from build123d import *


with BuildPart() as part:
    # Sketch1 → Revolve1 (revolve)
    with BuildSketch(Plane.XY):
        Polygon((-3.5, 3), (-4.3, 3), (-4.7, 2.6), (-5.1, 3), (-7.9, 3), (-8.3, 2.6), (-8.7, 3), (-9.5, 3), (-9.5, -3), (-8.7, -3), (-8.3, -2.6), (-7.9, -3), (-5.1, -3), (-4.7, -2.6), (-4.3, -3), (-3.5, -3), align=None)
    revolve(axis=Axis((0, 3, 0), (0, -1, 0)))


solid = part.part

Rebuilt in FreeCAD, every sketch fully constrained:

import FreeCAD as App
import Part
import Sketcher

doc = App.newDocument("Part")
body = doc.addObject("PartDesign::Body", "Body")

sketch1 = body.newObject("Sketcher::SketchObject", "Sketch")
sketch1.AttachmentSupport = (doc.getObject("XY_Plane"), [""])
sketch1.MapMode = "FlatFace"
sketch1.addGeometry(Part.LineSegment(App.Vector(-3.5, 3, 0), App.Vector(-4.3, 3, 0)), False)
sketch1.addGeometry(Part.LineSegment(App.Vector(-4.3, 3, 0), App.Vector(-4.7, 2.6, 0)), False)
sketch1.addGeometry(Part.LineSegment(App.Vector(-4.7, 2.6, 0), App.Vector(-5.1, 3, 0)), False)
sketch1.addGeometry(Part.LineSegment(App.Vector(-5.1, 3, 0), App.Vector(-7.9, 3, 0)), False)
sketch1.addGeometry(Part.LineSegment(App.Vector(-7.9, 3, 0), App.Vector(-8.3, 2.6, 0)), False)
sketch1.addGeometry(Part.LineSegment(App.Vector(-8.3, 2.6, 0), App.Vector(-8.7, 3, 0)), False)
sketch1.addGeometry(Part.LineSegment(App.Vector(-8.7, 3, 0), App.Vector(-9.5, 3, 0)), False)
sketch1.addGeometry(Part.LineSegment(App.Vector(-9.5, 3, 0), App.Vector(-9.5, -3, 0)), False)
sketch1.addGeometry(Part.LineSegment(App.Vector(-9.5, -3, 0), App.Vector(-8.7, -3, 0)), False)
sketch1.addGeometry(Part.LineSegment(App.Vector(-8.7, -3, 0), App.Vector(-8.3, -2.6, 0)), False)
sketch1.addGeometry(Part.LineSegment(App.Vector(-8.3, -2.6, 0), App.Vector(-7.9, -3, 0)), False)
sketch1.addGeometry(Part.LineSegment(App.Vector(-7.9, -3, 0), App.Vector(-5.1, -3, 0)), False)
sketch1.addGeometry(Part.LineSegment(App.Vector(-5.1, -3, 0), App.Vector(-4.7, -2.6, 0)), False)
sketch1.addGeometry(Part.LineSegment(App.Vector(-4.7, -2.6, 0), App.Vector(-4.3, -3, 0)), False)
sketch1.addGeometry(Part.LineSegment(App.Vector(-4.3, -3, 0), App.Vector(-3.5, -3, 0)), False)
sketch1.addGeometry(Part.LineSegment(App.Vector(-3.5, -3, 0), App.Vector(-3.5, 3, 0)), False)
sketch1.addConstraint(Sketcher.Constraint("Coincident", 0, 2, 1, 1))
sketch1.addConstraint(Sketcher.Constraint("Coincident", 1, 2, 2, 1))
sketch1.addConstraint(Sketcher.Constraint("Coincident", 2, 2, 3, 1))
sketch1.addConstraint(Sketcher.Constraint("Coincident", 3, 2, 4, 1))
sketch1.addConstraint(Sketcher.Constraint("Coincident", 4, 2, 5, 1))
sketch1.addConstraint(Sketcher.Constraint("Coincident", 5, 2, 6, 1))
sketch1.addConstraint(Sketcher.Constraint("Coincident", 6, 2, 7, 1))
sketch1.addConstraint(Sketcher.Constraint("Coincident", 7, 2, 8, 1))
sketch1.addConstraint(Sketcher.Constraint("Coincident", 8, 2, 9, 1))
sketch1.addConstraint(Sketcher.Constraint("Coincident", 9, 2, 10, 1))
sketch1.addConstraint(Sketcher.Constraint("Coincident", 10, 2, 11, 1))
sketch1.addConstraint(Sketcher.Constraint("Coincident", 11, 2, 12, 1))
sketch1.addConstraint(Sketcher.Constraint("Coincident", 12, 2, 13, 1))
sketch1.addConstraint(Sketcher.Constraint("Coincident", 13, 2, 14, 1))
sketch1.addConstraint(Sketcher.Constraint("Coincident", 14, 2, 15, 1))
sketch1.addConstraint(Sketcher.Constraint("Coincident", 15, 2, 0, 1))
sketch1.addConstraint(Sketcher.Constraint("Horizontal", 0))
sketch1.addConstraint(Sketcher.Constraint("Horizontal", 3))
sketch1.addConstraint(Sketcher.Constraint("Horizontal", 6))
sketch1.addConstraint(Sketcher.Constraint("Vertical", 7))
sketch1.addConstraint(Sketcher.Constraint("Horizontal", 8))
sketch1.addConstraint(Sketcher.Constraint("Horizontal", 11))
sketch1.addConstraint(Sketcher.Constraint("Horizontal", 14))
sketch1.addConstraint(Sketcher.Constraint("Vertical", 15))
sketch1.addConstraint(Sketcher.Constraint("Symmetric", 5, 2, 8, 2, -1))
sketch1.addConstraint(Sketcher.Constraint("Symmetric", 4, 2, 9, 2, -1))
sketch1.addConstraint(Sketcher.Constraint("Symmetric", 3, 2, 10, 2, -1))
sketch1.addConstraint(Sketcher.Constraint("Symmetric", 1, 2, 12, 2, -1))
sketch1.addConstraint(Sketcher.Constraint("Symmetric", 0, 2, 13, 2, -1))
sketch1.addConstraint(Sketcher.Constraint("Perpendicular", 1, 2))
sketch1.addConstraint(Sketcher.Constraint("Perpendicular", 2, 4))
sketch1.addConstraint(Sketcher.Constraint("Perpendicular", 4, 5))
sketch1.addConstraint(Sketcher.Constraint("Perpendicular", 5, 9))
sketch1.addConstraint(Sketcher.Constraint("Perpendicular", 10, 12))
sketch1.addConstraint(Sketcher.Constraint("Horizontal", 0, 2, 2, 2))
sketch1.addConstraint(Sketcher.Constraint("Horizontal", 1, 2, 4, 2))
sketch1.addConstraint(Sketcher.Constraint("Horizontal", 3, 2, 5, 2))
sketch1.addConstraint(Sketcher.Constraint("Equal", 0, 6))
sketch1.addConstraint(Sketcher.Constraint("DistanceY", 7, 2, 7, 1, 6.0))
sketch1.addConstraint(Sketcher.Constraint("DistanceX", 0, 2, 0, 1, 0.8))
sketch1.addConstraint(Sketcher.Constraint("DistanceX", 3, 2, 3, 1, 2.8))
sketch1.addConstraint(Sketcher.Constraint("DistanceX", 4, 2, 0, 2, 4.0))
sketch1.addConstraint(Sketcher.Constraint("DistanceX", 0, 2, -1, 1, 4.3))
revolution = body.newObject("PartDesign::Revolution", "Revolution")
revolution.Profile = sketch1
revolution.ReferenceAxis = (sketch1, ["V_Axis"])
revolution.Angle = 360

doc.recompute()
